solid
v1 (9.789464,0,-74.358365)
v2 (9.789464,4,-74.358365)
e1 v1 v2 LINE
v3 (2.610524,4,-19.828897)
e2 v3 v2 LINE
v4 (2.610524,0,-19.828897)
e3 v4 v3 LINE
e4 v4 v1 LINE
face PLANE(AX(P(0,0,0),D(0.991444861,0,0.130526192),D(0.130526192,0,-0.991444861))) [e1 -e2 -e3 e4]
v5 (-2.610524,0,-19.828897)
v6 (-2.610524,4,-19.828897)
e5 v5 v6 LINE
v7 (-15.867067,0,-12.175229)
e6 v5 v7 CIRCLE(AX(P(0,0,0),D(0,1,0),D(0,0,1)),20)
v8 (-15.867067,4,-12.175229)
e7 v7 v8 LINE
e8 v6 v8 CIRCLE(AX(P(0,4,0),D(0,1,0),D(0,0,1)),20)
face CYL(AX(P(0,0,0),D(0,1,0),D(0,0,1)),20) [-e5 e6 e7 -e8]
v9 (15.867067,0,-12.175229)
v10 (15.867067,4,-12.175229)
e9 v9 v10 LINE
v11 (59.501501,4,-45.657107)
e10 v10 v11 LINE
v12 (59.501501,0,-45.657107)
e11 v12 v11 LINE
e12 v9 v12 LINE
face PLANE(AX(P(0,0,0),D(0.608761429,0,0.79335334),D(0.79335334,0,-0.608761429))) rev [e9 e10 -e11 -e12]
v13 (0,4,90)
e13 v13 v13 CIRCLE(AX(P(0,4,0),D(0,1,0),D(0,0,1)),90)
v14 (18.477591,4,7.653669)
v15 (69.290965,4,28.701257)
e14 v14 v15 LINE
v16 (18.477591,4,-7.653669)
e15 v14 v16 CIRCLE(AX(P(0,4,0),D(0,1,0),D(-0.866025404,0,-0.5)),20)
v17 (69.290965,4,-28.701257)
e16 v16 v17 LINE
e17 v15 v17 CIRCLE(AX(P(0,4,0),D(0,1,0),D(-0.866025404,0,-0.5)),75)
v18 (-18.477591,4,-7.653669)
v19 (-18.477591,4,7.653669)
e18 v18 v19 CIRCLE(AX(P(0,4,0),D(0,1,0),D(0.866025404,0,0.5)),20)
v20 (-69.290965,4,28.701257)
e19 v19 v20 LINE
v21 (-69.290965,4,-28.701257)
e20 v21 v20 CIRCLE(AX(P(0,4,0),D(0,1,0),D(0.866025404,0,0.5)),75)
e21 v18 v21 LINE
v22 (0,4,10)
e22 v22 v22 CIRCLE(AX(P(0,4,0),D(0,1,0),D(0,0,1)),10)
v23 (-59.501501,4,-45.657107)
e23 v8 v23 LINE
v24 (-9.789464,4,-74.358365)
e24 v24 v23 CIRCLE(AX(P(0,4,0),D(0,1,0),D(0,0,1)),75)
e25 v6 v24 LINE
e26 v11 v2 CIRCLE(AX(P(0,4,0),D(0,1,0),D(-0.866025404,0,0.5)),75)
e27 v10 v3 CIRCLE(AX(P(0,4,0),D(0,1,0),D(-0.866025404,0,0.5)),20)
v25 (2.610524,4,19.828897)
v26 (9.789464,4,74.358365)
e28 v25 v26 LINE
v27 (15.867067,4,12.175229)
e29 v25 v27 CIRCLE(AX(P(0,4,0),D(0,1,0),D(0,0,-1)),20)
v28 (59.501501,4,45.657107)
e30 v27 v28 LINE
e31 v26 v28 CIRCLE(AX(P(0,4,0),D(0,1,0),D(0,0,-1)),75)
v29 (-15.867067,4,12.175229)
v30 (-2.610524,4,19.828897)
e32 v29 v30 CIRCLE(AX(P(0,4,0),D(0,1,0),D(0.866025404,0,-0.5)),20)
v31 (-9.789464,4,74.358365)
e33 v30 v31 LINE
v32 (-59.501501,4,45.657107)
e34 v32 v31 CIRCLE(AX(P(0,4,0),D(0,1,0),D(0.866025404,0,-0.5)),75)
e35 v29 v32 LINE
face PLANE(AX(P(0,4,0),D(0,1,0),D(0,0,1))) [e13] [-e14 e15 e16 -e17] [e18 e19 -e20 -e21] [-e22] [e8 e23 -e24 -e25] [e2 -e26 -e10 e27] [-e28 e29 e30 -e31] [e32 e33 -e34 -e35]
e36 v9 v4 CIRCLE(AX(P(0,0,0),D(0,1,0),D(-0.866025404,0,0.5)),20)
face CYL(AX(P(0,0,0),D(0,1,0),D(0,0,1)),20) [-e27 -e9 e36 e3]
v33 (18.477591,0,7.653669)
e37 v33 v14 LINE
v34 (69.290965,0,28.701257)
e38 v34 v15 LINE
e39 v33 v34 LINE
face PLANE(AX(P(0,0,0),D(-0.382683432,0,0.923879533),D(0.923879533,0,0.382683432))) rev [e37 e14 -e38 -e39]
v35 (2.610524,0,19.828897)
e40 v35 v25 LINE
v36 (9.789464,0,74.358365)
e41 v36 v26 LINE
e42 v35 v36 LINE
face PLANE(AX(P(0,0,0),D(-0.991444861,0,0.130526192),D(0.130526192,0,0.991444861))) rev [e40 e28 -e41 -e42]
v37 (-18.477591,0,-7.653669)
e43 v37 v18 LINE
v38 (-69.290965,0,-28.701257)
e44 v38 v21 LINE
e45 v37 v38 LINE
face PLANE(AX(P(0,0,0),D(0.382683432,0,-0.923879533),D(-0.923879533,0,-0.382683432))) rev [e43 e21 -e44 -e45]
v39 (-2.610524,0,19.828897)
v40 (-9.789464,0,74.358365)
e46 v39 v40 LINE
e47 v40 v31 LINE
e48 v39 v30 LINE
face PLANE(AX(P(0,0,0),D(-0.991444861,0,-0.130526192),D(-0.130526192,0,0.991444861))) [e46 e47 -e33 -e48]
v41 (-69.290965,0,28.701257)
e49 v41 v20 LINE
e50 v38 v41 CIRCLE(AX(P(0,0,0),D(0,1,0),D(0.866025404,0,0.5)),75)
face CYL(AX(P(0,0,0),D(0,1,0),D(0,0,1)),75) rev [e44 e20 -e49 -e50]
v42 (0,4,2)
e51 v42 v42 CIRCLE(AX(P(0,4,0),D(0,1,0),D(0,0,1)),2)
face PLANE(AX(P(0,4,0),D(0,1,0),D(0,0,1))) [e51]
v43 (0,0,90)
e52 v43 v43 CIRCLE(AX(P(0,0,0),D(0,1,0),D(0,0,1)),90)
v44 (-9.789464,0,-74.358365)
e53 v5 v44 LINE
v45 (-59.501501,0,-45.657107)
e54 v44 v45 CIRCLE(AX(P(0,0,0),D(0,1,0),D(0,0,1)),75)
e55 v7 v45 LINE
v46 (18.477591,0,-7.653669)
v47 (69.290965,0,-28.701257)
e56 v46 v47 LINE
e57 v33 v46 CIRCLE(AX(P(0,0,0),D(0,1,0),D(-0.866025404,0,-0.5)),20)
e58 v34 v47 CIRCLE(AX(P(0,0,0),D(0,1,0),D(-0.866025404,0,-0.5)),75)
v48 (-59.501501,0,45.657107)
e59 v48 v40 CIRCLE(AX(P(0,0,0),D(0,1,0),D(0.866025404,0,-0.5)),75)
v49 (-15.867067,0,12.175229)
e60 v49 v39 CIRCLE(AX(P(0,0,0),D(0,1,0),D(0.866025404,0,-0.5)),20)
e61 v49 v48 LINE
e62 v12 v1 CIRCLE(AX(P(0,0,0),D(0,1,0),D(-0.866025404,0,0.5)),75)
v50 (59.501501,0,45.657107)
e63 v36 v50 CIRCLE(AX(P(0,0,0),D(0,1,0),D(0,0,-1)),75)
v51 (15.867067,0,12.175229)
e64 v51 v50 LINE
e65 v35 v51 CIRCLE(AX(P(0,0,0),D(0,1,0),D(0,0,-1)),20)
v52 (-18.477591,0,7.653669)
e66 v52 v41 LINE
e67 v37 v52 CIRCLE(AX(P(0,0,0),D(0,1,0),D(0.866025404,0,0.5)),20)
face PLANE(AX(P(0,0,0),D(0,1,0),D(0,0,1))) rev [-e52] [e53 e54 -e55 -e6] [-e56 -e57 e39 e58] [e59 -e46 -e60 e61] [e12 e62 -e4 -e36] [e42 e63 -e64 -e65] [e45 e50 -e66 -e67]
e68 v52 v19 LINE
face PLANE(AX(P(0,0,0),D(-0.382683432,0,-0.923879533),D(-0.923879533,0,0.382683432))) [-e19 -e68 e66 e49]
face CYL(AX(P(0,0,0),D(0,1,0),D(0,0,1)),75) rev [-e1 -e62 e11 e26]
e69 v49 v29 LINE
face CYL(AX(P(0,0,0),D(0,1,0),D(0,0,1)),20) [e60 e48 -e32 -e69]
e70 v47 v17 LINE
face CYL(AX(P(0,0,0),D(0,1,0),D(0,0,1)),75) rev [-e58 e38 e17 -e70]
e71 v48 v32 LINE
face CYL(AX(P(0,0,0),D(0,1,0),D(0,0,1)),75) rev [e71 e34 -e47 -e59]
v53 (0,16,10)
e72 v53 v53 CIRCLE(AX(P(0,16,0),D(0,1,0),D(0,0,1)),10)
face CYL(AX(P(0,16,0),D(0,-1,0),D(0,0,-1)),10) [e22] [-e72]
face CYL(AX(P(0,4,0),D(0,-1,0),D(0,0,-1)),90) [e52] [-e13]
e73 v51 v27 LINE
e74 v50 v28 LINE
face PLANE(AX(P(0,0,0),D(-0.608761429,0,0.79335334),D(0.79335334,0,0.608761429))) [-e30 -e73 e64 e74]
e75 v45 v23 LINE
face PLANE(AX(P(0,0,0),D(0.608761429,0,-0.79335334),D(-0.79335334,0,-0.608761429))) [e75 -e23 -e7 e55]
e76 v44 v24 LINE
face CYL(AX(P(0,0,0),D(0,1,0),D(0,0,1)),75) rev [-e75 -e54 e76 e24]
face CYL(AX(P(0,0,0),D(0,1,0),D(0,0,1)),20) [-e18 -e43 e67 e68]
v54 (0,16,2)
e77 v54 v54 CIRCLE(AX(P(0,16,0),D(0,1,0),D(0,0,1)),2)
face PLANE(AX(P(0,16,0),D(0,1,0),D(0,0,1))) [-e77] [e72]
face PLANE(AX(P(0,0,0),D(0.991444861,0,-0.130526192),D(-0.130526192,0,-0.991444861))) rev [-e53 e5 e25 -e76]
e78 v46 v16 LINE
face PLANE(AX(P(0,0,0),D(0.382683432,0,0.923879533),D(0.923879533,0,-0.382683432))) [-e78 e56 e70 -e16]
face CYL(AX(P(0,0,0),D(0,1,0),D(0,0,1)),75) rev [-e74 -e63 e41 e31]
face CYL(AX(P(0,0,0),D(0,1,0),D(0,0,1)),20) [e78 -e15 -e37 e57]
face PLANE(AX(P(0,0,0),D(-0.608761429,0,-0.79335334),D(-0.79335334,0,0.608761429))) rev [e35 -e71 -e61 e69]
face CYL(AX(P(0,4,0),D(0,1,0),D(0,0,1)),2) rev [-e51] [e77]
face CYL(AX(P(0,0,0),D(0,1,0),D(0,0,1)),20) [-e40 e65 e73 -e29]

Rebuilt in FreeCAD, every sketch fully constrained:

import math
import FreeCAD as App
import Part
import Sketcher
from FreeCAD import Vector
Q = App.Units.Quantity

doc = App.newDocument("Part")
params = doc.addObject("Spreadsheet::Sheet", "Params")
for row, (alias, value) in enumerate([
    ("sketch1_diameter", "180 mm"),
    ("pad1_length", "4 mm"),
    ("sketch2_radius", "20 mm"),
    ("sketch2_radius2", "75 mm"),
    ("sketch3_diameter", "20 mm"),
    ("pad2_length", "12 mm"),
    ("sketch4_diameter", "4 mm"),
    ("pocket2_length", "12 mm"),
], start=1):
    params.set(f"A{row}", alias)
    params.set(f"B{row}", "=" + value)
    params.setAlias(f"B{row}", alias)

body = doc.addObject("PartDesign::Body", "Body")

sketch1 = body.newObject("Sketcher::SketchObject", "Sketch")
sketch1.AttachmentSupport = (doc.getObject("XZ_Plane"), [""])
sketch1.MapMode = "FlatFace"
sketch1.addGeometry(Part.Circle(Vector(0, 0, 0), Vector(0, 0, 1), 90), False)
sketch1.addConstraint([
    Sketcher.Constraint("Coincident", 0, 3, -1, 1),
    Sketcher.Constraint("Diameter", 0, 180.0),
])
sketch1.setExpression("Constraints[1]", "Params.sketch1_diameter")
pad1 = body.newObject("PartDesign::Pad", "Pad")
pad1.Profile = sketch1
pad1.setExpression("Length", "Params.pad1_length")
pad1.Reversed = True

sketch2 = body.newObject("Sketcher::SketchObject", "Sketch001")
sketch2.AttachmentSupport = (doc.getObject("XZ_Plane"), [""])
sketch2.MapMode = "FlatFace"
sketch2.AttachmentOffset = App.Placement(Vector(0, 0, -4), App.Rotation())
sketch2.addGeometry([
    Part.ArcOfCircle(Part.Circle(Vector(0, 0, 0), Vector(0, 0, 1), 20), math.radians(-143), math.radians(-97)),
    Part.LineSegment(Vector(-3, -20, 0), Vector(-10, -74, 0)),
    Part.ArcOfCircle(Part.Circle(Vector(0, 0, 0), Vector(0, 0, 1), 75), math.radians(-142), math.radians(-98)),
    Part.LineSegment(Vector(-60, -46, 0), Vector(-16, -12, 0)),
], False)
sketch2.addConstraint([
    Sketcher.Constraint("Coincident", 0, 2, 1, 1),
    Sketcher.Constraint("Coincident", 1, 2, 2, 2),
    Sketcher.Constraint("Coincident", 2, 1, 3, 1),
    Sketcher.Constraint("Coincident", 3, 2, 0, 1),
    Sketcher.Constraint("Coincident", 0, 3, -1, 1),
    Sketcher.Constraint("Coincident", 2, 3, -1, 1),
    Sketcher.Constraint("Radius", 0, 20.0),
    Sketcher.Constraint("Radius", 2, 75.0),
    Sketcher.Constraint("Angle", 1, Q("-97.5 deg")),
    Sketcher.Constraint("Angle", 3, Q("37.5 deg")),
    Sketcher.Constraint("DistanceX", 2, 1, -1, 1, 59.501501),
    Sketcher.Constraint("DistanceY", 0, 2, 3, 2, 7.653669),
])
sketch2.setExpression("Constraints[6]", "Params.sketch2_radius")
sketch2.setExpression("Constraints[7]", "Params.sketch2_radius2")
pocket1 = body.newObject("PartDesign::Pocket", "Pocket")
pocket1.Profile = sketch2
pocket1.Type = "ThroughAll"
pocket1.Reversed = True
doc.recompute()

polarpattern = body.newObject("PartDesign::PolarPattern", "PolarPattern")
polarpattern.Originals = [pocket1]
polarpattern.Axis = (doc.getObject("Y_Axis"), [""])
polarpattern.Angle = 360
polarpattern.Occurrences = 6
body.Tip = polarpattern

sketch3 = body.newObject("Sketcher::SketchObject", "Sketch002")
sketch3.AttachmentSupport = (doc.getObject("XZ_Plane"), [""])
sketch3.MapMode = "FlatFace"
sketch3.AttachmentOffset = App.Placement(Vector(0, 0, -4), App.Rotation())
sketch3.addGeometry(Part.Circle(Vector(0, 0, 0), Vector(0, 0, 1), 10), False)
sketch3.addConstraint([
    Sketcher.Constraint("Coincident", 0, 3, -1, 1),
    Sketcher.Constraint("Diameter", 0, 20.0),
])
sketch3.setExpression("Constraints[1]", "Params.sketch3_diameter")
pad2 = body.newObject("PartDesign::Pad", "Pad001")
pad2.Profile = sketch3
pad2.setExpression("Length", "Params.pad2_length")
pad2.Reversed = True

sketch4 = body.newObject("Sketcher::SketchObject", "Sketch003")
sketch4.AttachmentSupport = (doc.getObject("XZ_Plane"), [""])
sketch4.MapMode = "FlatFace"
sketch4.AttachmentOffset = App.Placement(Vector(0, 0, -16), App.Rotation())
sketch4.addGeometry(Part.Circle(Vector(0, 0, 0), Vector(0, 0, 1), 2), False)
sketch4.addConstraint([
    Sketcher.Constraint("Coincident", 0, 3, -1, 1),
    Sketcher.Constraint("Diameter", 0, 4.0),
])
sketch4.setExpression("Constraints[1]", "Params.sketch4_diameter")
pocket2 = body.newObject("PartDesign::Pocket", "Pocket001")
pocket2.Profile = sketch4
pocket2.setExpression("Length", "Params.pocket2_length")
pocket2.Reversed = True

doc.recompute()
